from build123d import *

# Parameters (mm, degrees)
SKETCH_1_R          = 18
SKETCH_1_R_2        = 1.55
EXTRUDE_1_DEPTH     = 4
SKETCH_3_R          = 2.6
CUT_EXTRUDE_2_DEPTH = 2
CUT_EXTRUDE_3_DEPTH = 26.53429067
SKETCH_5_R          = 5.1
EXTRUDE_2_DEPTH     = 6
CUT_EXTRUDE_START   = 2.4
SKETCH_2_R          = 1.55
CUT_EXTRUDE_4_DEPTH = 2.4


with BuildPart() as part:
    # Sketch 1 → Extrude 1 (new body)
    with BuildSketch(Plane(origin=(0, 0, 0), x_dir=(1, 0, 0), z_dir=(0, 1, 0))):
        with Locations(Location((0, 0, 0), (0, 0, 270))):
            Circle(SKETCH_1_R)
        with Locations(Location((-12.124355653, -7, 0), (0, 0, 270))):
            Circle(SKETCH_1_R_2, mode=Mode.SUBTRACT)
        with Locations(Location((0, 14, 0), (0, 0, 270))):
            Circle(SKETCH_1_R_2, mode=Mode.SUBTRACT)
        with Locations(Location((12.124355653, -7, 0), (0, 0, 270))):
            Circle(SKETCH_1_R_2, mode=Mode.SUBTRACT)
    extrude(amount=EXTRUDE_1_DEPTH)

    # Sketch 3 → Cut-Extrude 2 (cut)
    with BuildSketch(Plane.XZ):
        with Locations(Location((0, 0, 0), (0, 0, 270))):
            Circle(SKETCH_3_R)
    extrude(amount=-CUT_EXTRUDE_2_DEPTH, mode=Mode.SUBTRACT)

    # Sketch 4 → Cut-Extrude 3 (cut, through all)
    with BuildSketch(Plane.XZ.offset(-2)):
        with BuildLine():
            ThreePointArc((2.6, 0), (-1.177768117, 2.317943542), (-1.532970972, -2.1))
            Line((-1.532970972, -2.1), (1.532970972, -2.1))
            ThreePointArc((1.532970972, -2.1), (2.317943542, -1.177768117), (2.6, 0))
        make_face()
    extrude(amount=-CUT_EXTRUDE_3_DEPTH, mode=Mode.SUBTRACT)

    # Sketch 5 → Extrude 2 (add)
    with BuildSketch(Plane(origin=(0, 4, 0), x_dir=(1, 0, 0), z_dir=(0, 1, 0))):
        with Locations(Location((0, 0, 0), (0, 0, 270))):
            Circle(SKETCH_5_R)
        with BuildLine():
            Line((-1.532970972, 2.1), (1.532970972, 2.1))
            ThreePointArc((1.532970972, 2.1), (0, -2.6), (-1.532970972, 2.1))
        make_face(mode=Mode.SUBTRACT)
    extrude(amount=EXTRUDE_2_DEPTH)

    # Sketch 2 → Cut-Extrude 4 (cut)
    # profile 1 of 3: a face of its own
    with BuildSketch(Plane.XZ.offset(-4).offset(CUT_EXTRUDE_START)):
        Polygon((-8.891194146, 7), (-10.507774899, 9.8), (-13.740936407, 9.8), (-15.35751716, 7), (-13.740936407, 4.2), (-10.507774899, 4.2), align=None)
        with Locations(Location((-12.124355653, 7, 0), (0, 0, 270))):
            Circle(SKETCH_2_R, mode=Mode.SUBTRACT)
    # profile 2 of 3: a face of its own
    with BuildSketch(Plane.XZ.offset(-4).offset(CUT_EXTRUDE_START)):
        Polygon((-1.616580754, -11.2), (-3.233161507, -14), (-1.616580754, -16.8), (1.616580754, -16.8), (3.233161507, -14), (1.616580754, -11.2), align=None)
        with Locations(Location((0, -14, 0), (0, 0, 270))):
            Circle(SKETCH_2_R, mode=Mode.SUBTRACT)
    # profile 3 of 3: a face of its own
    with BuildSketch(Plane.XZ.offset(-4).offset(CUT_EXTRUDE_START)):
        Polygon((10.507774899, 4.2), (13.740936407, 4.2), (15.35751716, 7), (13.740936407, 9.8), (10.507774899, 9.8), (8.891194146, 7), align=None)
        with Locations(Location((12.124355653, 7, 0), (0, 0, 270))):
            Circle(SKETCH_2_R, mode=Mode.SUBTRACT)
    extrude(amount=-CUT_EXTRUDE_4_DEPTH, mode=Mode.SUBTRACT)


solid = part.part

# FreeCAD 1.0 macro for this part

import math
import FreeCAD as App
import Part
import Sketcher
from FreeCAD import Vector
Q = App.Units.Quantity

doc = App.newDocument("Part")
body = doc.addObject("PartDesign::Body", "Body")

# Sketch on XZ plane
sketch1 = body.newObject("Sketcher::SketchObject", "Sketch")
sketch1.AttachmentSupport = (doc.getObject("XZ_Plane"), [""])
sketch1.MapMode = "FlatFace"
sketch1.addGeometry([
    Part.Circle(Vector(0, 0, 0), Vector(0, 0, 1), 18),
    Part.Circle(Vector(0, -14, 0), Vector(0, 0, 1), 1.6),
    Part.Circle(Vector(-12.1, 7, 0), Vector(0, 0, 1), 1.6),
    Part.Circle(Vector(12.1, 7, 0), Vector(0, 0, 1), 1.6),
], False)
sketch1.addConstraint([
    Sketcher.Constraint("Coincident", 0, 3, -1, 1),
    Sketcher.Constraint("Equal", 1, 2),
    Sketcher.Constraint("Equal", 2, 3),
    Sketcher.Constraint("Symmetric", 2, 3, 3, 3, -2),
    Sketcher.Constraint("PointOnObject", 1, 3, -2),
    Sketcher.Constraint("Diameter", 0, 36.0),
    Sketcher.Constraint("Diameter", 1, 3.1),
    Sketcher.Constraint("DistanceY", 1, 3, -1, 1, 14.0),
    Sketcher.Constraint("DistanceY", -1, 1, 2, 3, 7.0),
    Sketcher.Constraint("DistanceX", 2, 3, 3, 3, 24.248711),
])
pad1 = body.newObject("PartDesign::Pad", "Pad")
pad1.Profile = sketch1
pad1.Length = 4
pad1.Reversed = True

# Sketch on XZ plane
sketch2 = body.newObject("Sketcher::SketchObject", "Sketch001")
sketch2.AttachmentSupport = (doc.getObject("XZ_Plane"), [""])
sketch2.MapMode = "FlatFace"
sketch2.addGeometry(Part.Circle(Vector(0, 0, 0), Vector(0, 0, 1), 2.6), False)
sketch2.addConstraint([
    Sketcher.Constraint("Coincident", 0, 3, -1, 1),
    Sketcher.Constraint("Diameter", 0, 5.2),
])
pocket1 = body.newObject("PartDesign::Pocket", "Pocket")
pocket1.Profile = sketch2
pocket1.Length = 2

# Sketch on XZ plane
sketch3 = body.newObject("Sketcher::SketchObject", "Sketch002")
sketch3.AttachmentSupport = (doc.getObject("XZ_Plane"), [""])
sketch3.MapMode = "FlatFace"
sketch3.AttachmentOffset = App.Placement(Vector(0, 0, -2), App.Rotation())
sketch3.addGeometry([
    Part.ArcOfCircle(Part.Circle(Vector(0, 0, 0), Vector(0, 0, 1), 2.6), math.radians(0), math.radians(234)),
    Part.LineSegment(Vector(-1.5, -2.1, 0), Vector(1.5, -2.1, 0)),
    Part.ArcOfCircle(Part.Circle(Vector(0, 0, 0), Vector(0, 0, 1), 2.6), math.radians(-54), math.radians(0)),
], False)
sketch3.addConstraint([
    Sketcher.Constraint("Coincident", 0, 2, 1, 1),
    Sketcher.Constraint("Coincident", 1, 2, 2, 1),
    Sketcher.Constraint("Tangent", 2, 2, 0, 1),
    Sketcher.Constraint("Horizontal", 1),
    Sketcher.Constraint("Coincident", 0, 3, -1, 1),
    Sketcher.Constraint("Equal", 0, 2),
    Sketcher.Constraint("PointOnObject", 2, 2, -1),
    Sketcher.Constraint("Radius", 0, 2.6),
    Sketcher.Constraint("DistanceY", 0, 2, -1, 1, 2.1),
])
pocket2 = body.newObject("PartDesign::Pocket", "Pocket001")
pocket2.Profile = sketch3
pocket2.Type = "ThroughAll"

# Sketch on XZ plane
sketch4 = body.newObject("Sketcher::SketchObject", "Sketch003")
sketch4.AttachmentSupport = (doc.getObject("XZ_Plane"), [""])
sketch4.MapMode = "FlatFace"
sketch4.AttachmentOffset = App.Placement(Vector(0, 0, -4), App.Rotation())
sketch4.addGeometry([
    Part.Circle(Vector(0, 0, 0), Vector(0, 0, 1), 5.1),
    Part.ArcOfCircle(Part.Circle(Vector(0, 0, 0), Vector(0, 0, 1), 2.6), math.radians(-54), math.radians(234)),
    Part.LineSegment(Vector(-1.5, -2.1, 0), Vector(1.5, -2.1, 0)),
], False)
sketch4.addConstraint([
    Sketcher.Constraint("Coincident", 1, 1, 2, 2),
    Sketcher.Constraint("Coincident", 2, 1, 1, 2),
    Sketcher.Constraint("Horizontal", 2),
    Sketcher.Constraint("Coincident", 0, 3, -1, 1),
    Sketcher.Constraint("Coincident", 1, 3, -1, 1),
    Sketcher.Constraint("Diameter", 0, 10.2),
    Sketcher.Constraint("Radius", 1, 2.6),
    Sketcher.Constraint("DistanceY", 1, 1, -1, 1, 2.1),
])
pad2 = body.newObject("PartDesign::Pad", "Pad001")
pad2.Profile = sketch4
pad2.Length = 6
pad2.Reversed = True

# Sketch on XZ plane
sketch5 = body.newObject("Sketcher::SketchObject", "Sketch004")
sketch5.AttachmentSupport = (doc.getObject("XZ_Plane"), [""])
sketch5.MapMode = "FlatFace"
sketch5.AttachmentOffset = App.Placement(Vector(0, 0, -1.6), App.Rotation())
sketch5.addGeometry([
    Part.LineSegment(Vector(-8.9, 7, 0), Vector(-10.5, 9.8, 0)),  # 0
    Part.LineSegment(Vector(-10.5, 9.8, 0), Vector(-13.7, 9.8, 0)),  # 1
    Part.LineSegment(Vector(-13.7, 9.8, 0), Vector(-15.4, 7, 0)),  # 2
    Part.LineSegment(Vector(-15.4, 7, 0), Vector(-13.7, 4.2, 0)),  # 3
    Part.LineSegment(Vector(-13.7, 4.2, 0), Vector(-10.5, 4.2, 0)),  # 4
    Part.LineSegment(Vector(-10.5, 4.2, 0), Vector(-8.9, 7, 0)),  # 5
    Part.Circle(Vector(-12.1, 7, 0), Vector(0, 0, 1), 1.6),  # 6
    Part.LineSegment(Vector(-1.6, -11.2, 0), Vector(-3.2, -14, 0)),  # 7
    Part.LineSegment(Vector(-3.2, -14, 0), Vector(-1.6, -16.8, 0)),  # 8
    Part.LineSegment(Vector(-1.6, -16.8, 0), Vector(1.6, -16.8, 0)),  # 9
    Part.LineSegment(Vector(1.6, -16.8, 0), Vector(3.2, -14, 0)),  # 10
    Part.LineSegment(Vector(3.2, -14, 0), Vector(1.6, -11.2, 0)),  # 11
    Part.LineSegment(Vector(1.6, -11.2, 0), Vector(-1.6, -11.2, 0)),  # 12
    Part.Circle(Vector(0, -14, 0), Vector(0, 0, 1), 1.6),  # 13
    Part.LineSegment(Vector(10.5, 4.2, 0), Vector(13.7, 4.2, 0)),  # 14
    Part.LineSegment(Vector(13.7, 4.2, 0), Vector(15.4, 7, 0)),  # 15
    Part.LineSegment(Vector(15.4, 7, 0), Vector(13.7, 9.8, 0)),  # 16
    Part.LineSegment(Vector(13.7, 9.8, 0), Vector(10.5, 9.8, 0)),  # 17
    Part.LineSegment(Vector(10.5, 9.8, 0), Vector(8.9, 7, 0)),  # 18
    Part.LineSegment(Vector(8.9, 7, 0), Vector(10.5, 4.2, 0)),  # 19
    Part.Circle(Vector(12.1, 7, 0), Vector(0, 0, 1), 1.6),  # 20
], False)
sketch5.addConstraint([
    Sketcher.Constraint("Coincident", 0, 2, 1, 1),
    Sketcher.Constraint("Coincident", 1, 2, 2, 1),
    Sketcher.Constraint("Coincident", 2, 2, 3, 1),
    Sketcher.Constraint("Coincident", 3, 2, 4, 1),
    Sketcher.Constraint("Coincident", 4, 2, 5, 1),
    Sketcher.Constraint("Coincident", 5, 2, 0, 1),
    Sketcher.Constraint("Coincident", 7, 2, 8, 1),
    Sketcher.Constraint("Coincident", 8, 2, 9, 1),
    Sketcher.Constraint("Coincident", 9, 2, 10, 1),
    Sketcher.Constraint("Coincident", 10, 2, 11, 1),
    Sketcher.Constraint("Coincident", 11, 2, 12, 1),
    Sketcher.Constraint("Coincident", 12, 2, 7, 1),
    Sketcher.Constraint("Coincident", 14, 2, 15, 1),
    Sketcher.Constraint("Coincident", 15, 2, 16, 1),
    Sketcher.Constraint("Coincident", 16, 2, 17, 1),
    Sketcher.Constraint("Coincident", 17, 2, 18, 1),
    Sketcher.Constraint("Coincident", 18, 2, 19, 1),
    Sketcher.Constraint("Coincident", 19, 2, 14, 1),
    Sketcher.Constraint("Horizontal", 1),
    Sketcher.Constraint("Horizontal", 4),
    Sketcher.Constraint("Horizontal", 9),
    Sketcher.Constraint("Horizontal", 12),
    Sketcher.Constraint("Horizontal", 14),
    Sketcher.Constraint("Horizontal", 17),
    Sketcher.Constraint("Equal", 6, 13),
    Sketcher.Constraint("Equal", 13, 20),
    Sketcher.Constraint("Symmetric", 6, 3, 20, 3, -2),
    Sketcher.Constraint("Symmetric", 7, 2, 10, 2, -2),
    Sketcher.Constraint("Symmetric", 3, 2, 14, 2, -2),
    Sketcher.Constraint("Symmetric", 2, 2, 15, 2, -2),
    Sketcher.Constraint("Symmetric", 1, 2, 16, 2, -2),
    Sketcher.Constraint("Symmetric", 5, 2, 18, 2, -2),
    Sketcher.Constraint("PointOnObject", 13, 3, -2),
    Sketcher.Constraint("Parallel", 0, 3),
    Sketcher.Constraint("Parallel", 2, 5),
    Sketcher.Constraint("Parallel", 5, 7),
    Sketcher.Constraint("Parallel", 3, 8),
    Sketcher.Constraint("Parallel", 7, 10),
    Sketcher.Constraint("Parallel", 8, 11),
    Sketcher.Constraint("Parallel", 10, 15),
    Sketcher.Constraint("Parallel", 15, 18),
    Sketcher.Constraint("Parallel", 16, 19),
    Sketcher.Constraint("Horizontal", 20, 3, 2, 2),
    Sketcher.Constraint("Horizontal", 2, 2, 5, 2),
    Sketcher.Constraint("Horizontal", 13, 3, 7, 2),
    Sketcher.Constraint("Vertical", 1, 2, 3, 2),
    Sketcher.Constraint("Vertical", 9, 2, 11, 2),
    Sketcher.Constraint("Equal", 4, 9),
    Sketcher.Constraint("Equal", 5, 7),
    Sketcher.Constraint("Diameter", 6, 3.1),
    Sketcher.Constraint("Angle", 0, Q("120 deg")),
    Sketcher.Constraint("DistanceY", -1, 1, 6, 3, 7.0),
    Sketcher.Constraint("DistanceY", 13, 3, -1, 1, 14.0),
    Sketcher.Constraint("DistanceY", -1, 1, 0, 2, 9.8),
    Sketcher.Constraint("DistanceX", 1, 2, 1, 1, 3.233162),
    Sketcher.Constraint("DistanceX", 6, 3, 20, 3, 24.248711),
    Sketcher.Constraint("DistanceX", 6, 3, 0, 2, 1.616581),
])
pocket3 = body.newObject("PartDesign::Pocket", "Pocket002")
pocket3.Profile = sketch5
pocket3.Length = 2.4

doc.recompute()
